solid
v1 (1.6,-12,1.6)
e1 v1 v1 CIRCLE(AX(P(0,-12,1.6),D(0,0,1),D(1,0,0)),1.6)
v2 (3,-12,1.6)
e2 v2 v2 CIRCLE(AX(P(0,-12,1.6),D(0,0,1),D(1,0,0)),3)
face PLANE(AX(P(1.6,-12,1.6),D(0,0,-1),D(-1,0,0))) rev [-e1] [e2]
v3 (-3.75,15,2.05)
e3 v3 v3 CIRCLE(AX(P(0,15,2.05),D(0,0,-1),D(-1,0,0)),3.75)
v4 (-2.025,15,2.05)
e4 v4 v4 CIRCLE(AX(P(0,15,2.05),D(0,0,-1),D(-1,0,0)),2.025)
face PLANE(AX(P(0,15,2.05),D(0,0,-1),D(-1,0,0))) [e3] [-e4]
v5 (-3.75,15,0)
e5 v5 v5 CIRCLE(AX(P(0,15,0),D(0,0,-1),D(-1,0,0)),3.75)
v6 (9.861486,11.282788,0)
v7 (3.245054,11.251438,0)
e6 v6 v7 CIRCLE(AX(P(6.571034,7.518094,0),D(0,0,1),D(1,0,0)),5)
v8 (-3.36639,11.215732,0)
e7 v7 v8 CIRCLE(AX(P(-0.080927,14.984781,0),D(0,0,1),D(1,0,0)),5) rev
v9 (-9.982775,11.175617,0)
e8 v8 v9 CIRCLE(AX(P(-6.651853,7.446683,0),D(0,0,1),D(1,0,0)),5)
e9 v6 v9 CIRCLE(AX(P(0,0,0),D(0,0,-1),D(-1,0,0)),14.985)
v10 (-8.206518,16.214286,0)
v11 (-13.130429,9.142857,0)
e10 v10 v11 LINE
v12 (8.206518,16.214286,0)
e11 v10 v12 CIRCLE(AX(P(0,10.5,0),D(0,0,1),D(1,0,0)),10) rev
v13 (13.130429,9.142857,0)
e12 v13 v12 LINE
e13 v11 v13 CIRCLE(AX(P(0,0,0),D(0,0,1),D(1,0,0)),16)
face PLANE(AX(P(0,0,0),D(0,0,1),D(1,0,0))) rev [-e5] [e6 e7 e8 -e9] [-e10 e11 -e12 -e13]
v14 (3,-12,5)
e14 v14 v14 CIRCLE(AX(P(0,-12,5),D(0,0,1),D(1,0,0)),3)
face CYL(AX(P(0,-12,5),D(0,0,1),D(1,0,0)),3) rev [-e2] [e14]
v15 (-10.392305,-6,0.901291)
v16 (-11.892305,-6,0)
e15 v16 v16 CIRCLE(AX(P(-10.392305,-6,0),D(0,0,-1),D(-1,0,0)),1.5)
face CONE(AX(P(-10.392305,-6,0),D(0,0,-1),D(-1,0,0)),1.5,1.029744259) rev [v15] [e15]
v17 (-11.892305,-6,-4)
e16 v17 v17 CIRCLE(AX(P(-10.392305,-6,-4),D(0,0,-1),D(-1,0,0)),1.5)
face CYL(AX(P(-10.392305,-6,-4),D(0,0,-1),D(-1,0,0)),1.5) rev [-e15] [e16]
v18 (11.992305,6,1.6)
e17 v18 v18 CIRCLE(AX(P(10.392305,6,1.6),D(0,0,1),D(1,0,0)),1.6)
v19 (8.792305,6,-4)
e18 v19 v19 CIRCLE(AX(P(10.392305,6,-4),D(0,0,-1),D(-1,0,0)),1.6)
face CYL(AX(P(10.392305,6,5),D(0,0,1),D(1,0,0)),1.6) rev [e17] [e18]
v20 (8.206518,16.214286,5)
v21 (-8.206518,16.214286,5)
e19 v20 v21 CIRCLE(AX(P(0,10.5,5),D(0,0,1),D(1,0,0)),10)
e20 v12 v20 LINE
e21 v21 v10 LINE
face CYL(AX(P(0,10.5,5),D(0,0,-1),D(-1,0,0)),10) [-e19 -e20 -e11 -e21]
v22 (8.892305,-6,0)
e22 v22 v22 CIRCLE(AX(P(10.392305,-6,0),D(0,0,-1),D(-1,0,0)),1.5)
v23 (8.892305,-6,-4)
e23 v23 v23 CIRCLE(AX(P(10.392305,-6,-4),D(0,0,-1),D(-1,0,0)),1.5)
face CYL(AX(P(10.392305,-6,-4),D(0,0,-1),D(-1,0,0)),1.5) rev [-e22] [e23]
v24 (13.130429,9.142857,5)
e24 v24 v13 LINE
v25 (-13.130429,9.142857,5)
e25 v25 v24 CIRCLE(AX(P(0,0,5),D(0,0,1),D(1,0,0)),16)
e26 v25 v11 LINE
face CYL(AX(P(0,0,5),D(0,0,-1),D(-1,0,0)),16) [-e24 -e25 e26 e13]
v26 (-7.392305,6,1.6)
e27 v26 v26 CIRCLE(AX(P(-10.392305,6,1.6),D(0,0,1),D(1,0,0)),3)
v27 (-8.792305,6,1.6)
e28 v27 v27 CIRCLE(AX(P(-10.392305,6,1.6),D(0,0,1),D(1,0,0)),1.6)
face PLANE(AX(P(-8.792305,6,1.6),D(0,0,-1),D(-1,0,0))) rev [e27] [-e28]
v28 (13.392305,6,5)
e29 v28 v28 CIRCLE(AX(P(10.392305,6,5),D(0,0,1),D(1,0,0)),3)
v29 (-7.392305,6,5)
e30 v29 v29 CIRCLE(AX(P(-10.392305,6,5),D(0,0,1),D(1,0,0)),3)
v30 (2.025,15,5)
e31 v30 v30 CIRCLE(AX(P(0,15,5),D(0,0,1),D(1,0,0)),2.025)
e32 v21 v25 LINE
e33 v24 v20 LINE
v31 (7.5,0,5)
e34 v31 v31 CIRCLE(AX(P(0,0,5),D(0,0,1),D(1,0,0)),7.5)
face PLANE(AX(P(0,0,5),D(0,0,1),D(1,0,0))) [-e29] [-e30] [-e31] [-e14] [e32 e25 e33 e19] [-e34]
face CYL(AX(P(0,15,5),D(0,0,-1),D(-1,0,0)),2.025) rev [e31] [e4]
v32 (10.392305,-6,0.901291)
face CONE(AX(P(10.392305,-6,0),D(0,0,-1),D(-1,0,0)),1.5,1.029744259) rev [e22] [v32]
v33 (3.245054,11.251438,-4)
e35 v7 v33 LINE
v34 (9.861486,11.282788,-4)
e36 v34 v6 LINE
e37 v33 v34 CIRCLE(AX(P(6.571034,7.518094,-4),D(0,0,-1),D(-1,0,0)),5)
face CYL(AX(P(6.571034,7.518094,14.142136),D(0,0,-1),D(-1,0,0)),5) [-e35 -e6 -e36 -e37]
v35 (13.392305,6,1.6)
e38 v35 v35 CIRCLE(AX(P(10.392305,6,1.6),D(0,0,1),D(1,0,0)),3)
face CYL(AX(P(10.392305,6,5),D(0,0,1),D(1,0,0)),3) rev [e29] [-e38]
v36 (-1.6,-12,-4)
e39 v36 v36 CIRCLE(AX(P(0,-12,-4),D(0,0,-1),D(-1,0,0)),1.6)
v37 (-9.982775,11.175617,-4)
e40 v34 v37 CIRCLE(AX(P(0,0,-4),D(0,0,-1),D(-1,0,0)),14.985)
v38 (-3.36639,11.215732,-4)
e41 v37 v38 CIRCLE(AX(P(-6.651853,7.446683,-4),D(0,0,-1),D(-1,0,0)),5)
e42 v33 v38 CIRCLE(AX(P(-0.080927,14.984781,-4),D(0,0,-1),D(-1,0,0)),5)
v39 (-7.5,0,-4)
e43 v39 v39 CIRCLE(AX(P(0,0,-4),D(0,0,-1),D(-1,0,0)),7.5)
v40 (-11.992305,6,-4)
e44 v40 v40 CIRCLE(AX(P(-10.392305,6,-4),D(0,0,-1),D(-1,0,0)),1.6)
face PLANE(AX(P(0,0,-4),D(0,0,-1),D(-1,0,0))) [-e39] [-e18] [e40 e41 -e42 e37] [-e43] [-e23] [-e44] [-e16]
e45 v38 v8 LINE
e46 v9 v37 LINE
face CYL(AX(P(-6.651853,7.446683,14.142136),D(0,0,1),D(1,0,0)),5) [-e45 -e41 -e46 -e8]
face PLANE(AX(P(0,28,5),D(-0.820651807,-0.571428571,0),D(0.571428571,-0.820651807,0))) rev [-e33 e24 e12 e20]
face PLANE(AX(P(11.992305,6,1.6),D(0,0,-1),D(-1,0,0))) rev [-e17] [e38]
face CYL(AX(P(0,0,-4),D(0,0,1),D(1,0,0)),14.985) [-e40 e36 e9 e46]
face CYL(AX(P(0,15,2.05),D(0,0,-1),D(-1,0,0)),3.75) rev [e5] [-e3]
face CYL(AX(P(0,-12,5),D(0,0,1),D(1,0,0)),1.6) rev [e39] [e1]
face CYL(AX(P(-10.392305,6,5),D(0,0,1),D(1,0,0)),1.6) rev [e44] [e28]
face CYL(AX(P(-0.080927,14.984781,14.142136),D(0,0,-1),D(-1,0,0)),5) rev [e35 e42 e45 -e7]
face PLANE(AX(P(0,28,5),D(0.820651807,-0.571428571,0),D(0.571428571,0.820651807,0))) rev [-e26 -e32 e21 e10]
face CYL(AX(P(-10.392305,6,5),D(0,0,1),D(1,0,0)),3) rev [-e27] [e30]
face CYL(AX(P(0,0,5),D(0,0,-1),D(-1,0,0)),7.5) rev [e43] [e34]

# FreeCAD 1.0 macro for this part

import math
import FreeCAD as App
import Part
import Sketcher
from FreeCAD import Vector


def edges_at(feature, points):
    """Names of the edges that pass closest to the given points."""
    edges = feature.Shape.Edges
    near = lambda p: min(range(len(edges)), key=lambda i: edges[i].distToShape(Part.Vertex(*p))[0])
    return sorted({f"Edge{near(p) + 1}" for p in points})

doc = App.newDocument("Part")
params = doc.addObject("Spreadsheet::Sheet", "Params")
for row, (alias, value) in enumerate([
    ("sketch1_diameter", "15 mm"),
    ("sketch1_radius", "16 mm"),
    ("sketch1_diameter2", "4.05 mm"),
    ("pad1_length", "5 mm"),
    ("fillet_radius", "10 mm"),
    ("sketch2_diameter", "15 mm"),
    ("sketch2_diameter2", "29.97 mm"),
    ("pad2_length", "4 mm"),
    ("sketch3_diameter", "3.2 mm"),
    ("hole_diameter", "3.2 mm"),
    ("hole_cbore_diameter", "6 mm"),
    ("hole_cbore_depth", "3.4 mm"),
    ("sketch4_diameter", "10 mm"),
    ("pocket1_length", "4 mm"),
    ("sketch5_diameter", "7.5 mm"),
    ("pocket2_length", "2.05 mm"),
    ("fillet2_radius", "5 mm"),
    ("sketch6_diameter", "3 mm"),
    ("hole2_diameter", "3 mm"),
    ("hole2_depth", "4 mm"),
], start=1):
    params.set(f"A{row}", alias)
    params.set(f"B{row}", "=" + value)
    params.setAlias(f"B{row}", alias)

body = doc.addObject("PartDesign::Body", "Body")

sketch1 = doc.addObject("Sketcher::SketchObject", "Sketch")
body.addObject(sketch1)
sketch1.AttachmentSupport = (doc.XY_Plane, [""])
sketch1.MapMode = "FlatFace"
sketch1.addGeometry([
    Part.LineSegment(Vector(13.1, 9.1, 0), Vector(0, 28, 0)),
    Part.LineSegment(Vector(0, 28, 0), Vector(-13.1, 9.1, 0)),
    Part.ArcOfCircle(Part.Circle(Vector(0, 0, 0), Vector(0, 0, 1), 16), math.radians(145), math.radians(395)),
    Part.Circle(Vector(0, 0, 0), Vector(0, 0, 1), 7.5),
    Part.Circle(Vector(0, 15, 0), Vector(0, 0, 1), 2),
], False)
sketch1.addConstraint([
    Sketcher.Constraint("Coincident", 0, 2, 1, 1),
    Sketcher.Constraint("Tangent", 1, 2, 2, 1),
    Sketcher.Constraint("Tangent", 2, 2, 0, 1),
    Sketcher.Constraint("Coincident", 2, 3, -1, 1),
    Sketcher.Constraint("Coincident", 3, 3, -1, 1),
    Sketcher.Constraint("PointOnObject", 4, 3, -2),
    Sketcher.Constraint("PointOnObject", 0, 2, -2),
    Sketcher.Constraint("Diameter", 3, 15.0),
    Sketcher.Constraint("Radius", 2, 16.0),
    Sketcher.Constraint("Diameter", 4, 4.05),
    Sketcher.Constraint("DistanceY", -1, 1, 4, 3, 15.0),
    Sketcher.Constraint("DistanceY", -1, 1, 0, 2, 28.0),
])
sketch1.setExpression("Constraints[7]", "Params.sketch1_diameter")
sketch1.setExpression("Constraints[8]", "Params.sketch1_radius")
sketch1.setExpression("Constraints[9]", "Params.sketch1_diameter2")
pad1 = doc.addObject("PartDesign::Pad", "Pad")
body.addObject(pad1)
pad1.Profile = sketch1
pad1.setExpression("Length", "Params.pad1_length")
doc.recompute()

fillet = doc.addObject("PartDesign::Fillet", "Fillet")
body.addObject(fillet)
fillet.Base = (pad1, edges_at(pad1, [(0, 28, 2.5)]))
fillet.setExpression("Radius", "Params.fillet_radius")

sketch2 = doc.addObject("Sketcher::SketchObject", "Sketch001")
body.addObject(sketch2)
sketch2.AttachmentSupport = (doc.XY_Plane, [""])
sketch2.MapMode = "FlatFace"
sketch2.AttachmentOffset = App.Placement(Vector(0, 0, -4), App.Rotation())
sketch2.addGeometry([
    Part.Circle(Vector(0, 0, 0), Vector(0, 0, 1), 15),
    Part.Circle(Vector(0, 0, 0), Vector(0, 0, 1), 8),
], False)
sketch2.addConstraint([
    Sketcher.Constraint("Coincident", 0, 3, -1, 1),
    Sketcher.Constraint("Coincident", 1, 3, -1, 1),
    Sketcher.Constraint("Diameter", 1, 15.0),
    Sketcher.Constraint("Diameter", 0, 29.97),
])
sketch2.setExpression("Constraints[2]", "Params.sketch2_diameter")
sketch2.setExpression("Constraints[3]", "Params.sketch2_diameter2")
pad2 = doc.addObject("PartDesign::Pad", "Pad001")
body.addObject(pad2)
pad2.Profile = sketch2
pad2.setExpression("Length", "Params.pad2_length")

sketch3 = doc.addObject("Sketcher::SketchObject", "Sketch002")
body.addObject(sketch3)
sketch3.AttachmentSupport = (doc.XY_Plane, [""])
sketch3.MapMode = "FlatFace"
sketch3.AttachmentOffset = App.Placement(Vector(0, 0, 5), App.Rotation())
sketch3.addGeometry([
    Part.Circle(Vector(10.4, 6, 0), Vector(0, 0, 1), 1.6),
    Part.Circle(Vector(0, -12, 0), Vector(0, 0, 1), 1.6),
    Part.Circle(Vector(-10.4, 6, 0), Vector(0, 0, 1), 1.6),
], False)
sketch3.addConstraint([
    Sketcher.Constraint("Equal", 0, 1),
    Sketcher.Constraint("Equal", 1, 2),
    Sketcher.Constraint("Symmetric", 0, 3, 2, 3, -2),
    Sketcher.Constraint("PointOnObject", 1, 3, -2),
    Sketcher.Constraint("Diameter", 0, 3.2),
    Sketcher.Constraint("DistanceY", -1, 1, 0, 3, 6.0),
    Sketcher.Constraint("DistanceY", 1, 3, -1, 1, 12.0),
    Sketcher.Constraint("DistanceX", 2, 3, 0, 3, 20.78461),
])
sketch3.setExpression("Constraints[4]", "Params.sketch3_diameter")
doc.recompute()
hole = doc.addObject("PartDesign::Hole", "Hole")
body.addObject(hole)
hole.Profile = sketch3
hole.ThreadType = "None"
hole.setExpression("Diameter", "Params.hole_diameter")
hole.DepthType = "ThroughAll"
hole.HoleCutType = "Counterbore"
hole.setExpression("HoleCutDiameter", "Params.hole_cbore_diameter")
hole.setExpression("HoleCutDepth", "Params.hole_cbore_depth")

sketch4 = doc.addObject("Sketcher::SketchObject", "Sketch003")
body.addObject(sketch4)
sketch4.AttachmentSupport = (doc.XY_Plane, [""])
sketch4.MapMode = "FlatFace"
sketch4.AttachmentOffset = App.Placement(Vector(0, 0, -4), App.Rotation())
sketch4.addGeometry(Part.Circle(Vector(0, 15, 0), Vector(0, 0, 1), 5), False)
sketch4.addConstraint([
    Sketcher.Constraint("Diameter", 0, 10.0),
    Sketcher.Constraint("DistanceY", -1, 1, 0, 3, 14.984781),
    Sketcher.Constraint("DistanceX", 0, 3, -1, 1, 0.080927),
])
sketch4.setExpression("Constraints[0]", "Params.sketch4_diameter")
pocket1 = doc.addObject("PartDesign::Pocket", "Pocket")
body.addObject(pocket1)
pocket1.Profile = sketch4
pocket1.setExpression("Length", "Params.pocket1_length")
pocket1.Reversed = True

sketch5 = doc.addObject("Sketcher::SketchObject", "Sketch004")
body.addObject(sketch5)
sketch5.AttachmentSupport = (doc.XY_Plane, [""])
sketch5.MapMode = "FlatFace"
sketch5.addGeometry(Part.Circle(Vector(0, 15, 0), Vector(0, 0, 1), 3.8), False)
sketch5.addConstraint([
    Sketcher.Constraint("PointOnObject", 0, 3, -2),
    Sketcher.Constraint("Diameter", 0, 7.5),
    Sketcher.Constraint("DistanceY", -1, 1, 0, 3, 15.0),
])
sketch5.setExpression("Constraints[1]", "Params.sketch5_diameter")
pocket2 = doc.addObject("PartDesign::Pocket", "Pocket001")
body.addObject(pocket2)
pocket2.Profile = sketch5
pocket2.setExpression("Length", "Params.pocket2_length")
pocket2.Reversed = True
doc.recompute()

fillet2 = doc.addObject("PartDesign::Fillet", "Fillet001")
body.addObject(fillet2)
fillet2.Base = (pocket2, edges_at(pocket2, [(4.853, 14.177, -2), (-5.006, 14.124, -2)]))
fillet2.setExpression("Radius", "Params.fillet2_radius")

sketch6 = doc.addObject("Sketcher::SketchObject", "Sketch005")
body.addObject(sketch6)
sketch6.AttachmentSupport = (doc.XY_Plane, [""])
sketch6.MapMode = "FlatFace"
sketch6.AttachmentOffset = App.Placement(Vector(0, 0, -4), App.Rotation())
sketch6.addGeometry([
    Part.Circle(Vector(10.4, -6, 0), Vector(0, 0, 1), 1.5),
    Part.Circle(Vector(-10.4, -6, 0), Vector(0, 0, 1), 1.5),
], False)
sketch6.addConstraint([
    Sketcher.Constraint("Equal", 0, 1),
    Sketcher.Constraint("Symmetric", 0, 3, 1, 3, -2),
    Sketcher.Constraint("Diameter", 0, 3.0),
    Sketcher.Constraint("DistanceY", 0, 3, -1, 1, 6.0),
    Sketcher.Constraint("DistanceX", 1, 3, 0, 3, 20.78461),
])
sketch6.setExpression("Constraints[2]", "Params.sketch6_diameter")
doc.recompute()
hole2 = doc.addObject("PartDesign::Hole", "Hole001")
body.addObject(hole2)
hole2.Profile = sketch6
hole2.ThreadType = "None"
hole2.setExpression("Diameter", "Params.hole2_diameter")
hole2.DepthType = "Dimension"
hole2.setExpression("Depth", "Params.hole2_depth")
hole2.DrillPoint = "Angled"
hole2.DrillPointAngle = 118
hole2.Reversed = True

doc.recompute()
